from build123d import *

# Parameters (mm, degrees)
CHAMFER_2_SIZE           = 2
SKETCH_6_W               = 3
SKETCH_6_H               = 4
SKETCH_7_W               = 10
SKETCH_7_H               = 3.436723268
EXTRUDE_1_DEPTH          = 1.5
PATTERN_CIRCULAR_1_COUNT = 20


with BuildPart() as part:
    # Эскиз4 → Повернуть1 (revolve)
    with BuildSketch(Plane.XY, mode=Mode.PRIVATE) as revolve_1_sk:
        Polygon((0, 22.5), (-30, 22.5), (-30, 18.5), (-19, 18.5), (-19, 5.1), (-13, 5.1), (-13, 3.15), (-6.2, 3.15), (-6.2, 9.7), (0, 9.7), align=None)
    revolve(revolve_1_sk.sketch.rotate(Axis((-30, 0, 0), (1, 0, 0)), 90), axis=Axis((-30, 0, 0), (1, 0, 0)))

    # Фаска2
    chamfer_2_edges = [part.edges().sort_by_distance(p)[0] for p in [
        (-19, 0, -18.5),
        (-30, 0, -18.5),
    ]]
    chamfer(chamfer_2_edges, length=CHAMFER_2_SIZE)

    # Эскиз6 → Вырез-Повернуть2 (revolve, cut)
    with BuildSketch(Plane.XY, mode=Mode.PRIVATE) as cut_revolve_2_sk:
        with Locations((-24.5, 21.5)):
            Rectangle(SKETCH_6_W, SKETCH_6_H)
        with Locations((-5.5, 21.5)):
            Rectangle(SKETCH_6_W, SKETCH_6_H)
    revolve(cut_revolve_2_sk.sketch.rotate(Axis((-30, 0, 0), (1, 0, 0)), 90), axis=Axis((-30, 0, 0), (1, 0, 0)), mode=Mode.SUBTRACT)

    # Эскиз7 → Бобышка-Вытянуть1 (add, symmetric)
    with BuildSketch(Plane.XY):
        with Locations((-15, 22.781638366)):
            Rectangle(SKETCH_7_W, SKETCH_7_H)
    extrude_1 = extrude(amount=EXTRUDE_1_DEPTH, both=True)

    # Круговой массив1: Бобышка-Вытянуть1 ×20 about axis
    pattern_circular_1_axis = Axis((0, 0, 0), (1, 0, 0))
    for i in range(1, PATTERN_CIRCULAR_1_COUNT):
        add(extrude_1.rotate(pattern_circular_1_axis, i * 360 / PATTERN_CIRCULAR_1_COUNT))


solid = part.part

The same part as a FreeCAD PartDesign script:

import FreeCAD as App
import Part
import Sketcher


def edges_at(feature, points):
    """Names of the edges that pass closest to the given points."""
    edges = feature.Shape.Edges
    near = lambda p: min(range(len(edges)), key=lambda i: edges[i].distToShape(Part.Vertex(*p))[0])
    return sorted({f"Edge{near(p) + 1}" for p in points})


def add_polygon(sketch, points):
    """Adds a closed chain of lines whose ends are joined by coincident constraints."""
    first, n = sketch.GeometryCount, len(points)
    for a, b in zip(points, points[1:] + points[:1]):
        sketch.addGeometry(Part.LineSegment(App.Vector(*a, 0), App.Vector(*b, 0)), False)
    for i in range(n):
        sketch.addConstraint(Sketcher.Constraint("Coincident", first + i, 2, first + (i + 1) % n, 1))

doc = App.newDocument("Part")
body = doc.addObject("PartDesign::Body", "Body")

sketch1 = doc.addObject("Sketcher::SketchObject", "Sketch")
body.addObject(sketch1)
sketch1.AttachmentSupport = (doc.XY_Plane, [""])
sketch1.MapMode = "FlatFace"
add_polygon(sketch1, [(0, 22.5), (-30, 22.5), (-30, 18.5), (-19, 18.5), (-19, 5.1), (-13, 5.1), (-13, 3.1), (-6.2, 3.1), (-6.2, 9.7), (0, 9.7)])
sketch1.addConstraint([
    Sketcher.Constraint("Horizontal", 0),
    Sketcher.Constraint("Vertical", 1),
    Sketcher.Constraint("Horizontal", 2),
    Sketcher.Constraint("Vertical", 3),
    Sketcher.Constraint("Horizontal", 4),
    Sketcher.Constraint("Vertical", 5),
    Sketcher.Constraint("Horizontal", 6),
    Sketcher.Constraint("Vertical", 7),
    Sketcher.Constraint("Horizontal", 8),
    Sketcher.Constraint("Vertical", 9),
    Sketcher.Constraint("PointOnObject", 8, 2, -2),
    Sketcher.Constraint("DistanceX", 0, 2, 0, 1, 30.0),
    Sketcher.Constraint("DistanceX", 2, 1, 2, 2, 11.0),
    Sketcher.Constraint("DistanceX", 4, 1, 4, 2, 6.0),
    Sketcher.Constraint("DistanceY", 1, 2, 1, 1, 4.0),
    Sketcher.Constraint("DistanceX", 6, 1, 6, 2, 6.8),
    Sketcher.Constraint("DistanceY", 3, 2, 3, 1, 13.4),
    Sketcher.Constraint("DistanceY", 9, 1, 9, 2, 12.8),
    Sketcher.Constraint("DistanceY", 5, 2, 5, 1, 1.95),
    Sketcher.Constraint("DistanceY", -1, 1, 0, 2, 22.5),
])
revolution = doc.addObject("PartDesign::Revolution", "Revolution")
body.addObject(revolution)
revolution.Profile = sketch1
revolution.ReferenceAxis = (sketch1, ["H_Axis"])
revolution.Angle = 360
doc.recompute()

chamfer = doc.addObject("PartDesign::Chamfer", "Chamfer")
body.addObject(chamfer)
chamfer.Base = (revolution, edges_at(revolution, [(-19, 0, -18.5), (-30, 0, -18.5)]))
chamfer.Size = 2

sketch2 = doc.addObject("Sketcher::SketchObject", "Sketch001")
body.addObject(sketch2)
sketch2.AttachmentSupport = (doc.XY_Plane, [""])
sketch2.MapMode = "FlatFace"
add_polygon(sketch2, [(-26, 23.5), (-26, 19.5), (-23, 19.5), (-23, 23.5)])
add_polygon(sketch2, [(-7, 23.5), (-7, 19.5), (-4, 19.5), (-4, 23.5)])
sketch2.addConstraint([
    Sketcher.Constraint("Vertical", 0),
    Sketcher.Constraint("Horizontal", 1),
    Sketcher.Constraint("Vertical", 2),
    Sketcher.Constraint("Horizontal", 3),
    Sketcher.Constraint("Vertical", 4),
    Sketcher.Constraint("Horizontal", 5),
    Sketcher.Constraint("Vertical", 6),
    Sketcher.Constraint("Horizontal", 7),
    Sketcher.Constraint("Horizontal", 1, 2, 4, 2),
    Sketcher.Constraint("Horizontal", 3, 2, 6, 2),
    Sketcher.Constraint("Equal", 3, 5),
    Sketcher.Constraint("DistanceX", 1, 1, 1, 2, 3.0),
    Sketcher.Constraint("DistanceY", 0, 2, 0, 1, 4.0),
    Sketcher.Constraint("DistanceX", 0, 2, -1, 1, 26.0),
    Sketcher.Constraint("DistanceX", 4, 2, -1, 1, 7.0),
    Sketcher.Constraint("DistanceY", -1, 1, 0, 2, 19.5),
])
groove = doc.addObject("PartDesign::Groove", "Groove")
body.addObject(groove)
groove.Profile = sketch2
groove.ReferenceAxis = (sketch2, ["H_Axis"])
groove.Angle = 360

sketch3 = doc.addObject("Sketcher::SketchObject", "Sketch002")
body.addObject(sketch3)
sketch3.AttachmentSupport = (doc.XY_Plane, [""])
sketch3.MapMode = "FlatFace"
add_polygon(sketch3, [(-20, 24.5), (-20, 21.1), (-10, 21.1), (-10, 24.5)])
sketch3.addConstraint([
    Sketcher.Constraint("Vertical", 0),
    Sketcher.Constraint("Horizontal", 1),
    Sketcher.Constraint("Vertical", 2),
    Sketcher.Constraint("Horizontal", 3),
    Sketcher.Constraint("DistanceX", 1, 1, 1, 2, 10.0),
    Sketcher.Constraint("DistanceX", 0, 2, -1, 1, 20.0),
    Sketcher.Constraint("DistanceY", -1, 1, 2, 2, 24.5),
    Sketcher.Constraint("DistanceY", 0, 2, 0, 1, 3.436723),
])
pad1 = doc.addObject("PartDesign::Pad", "Pad")
body.addObject(pad1)
pad1.Profile = sketch3
pad1.Length = 3
pad1.Midplane = True
doc.recompute()

polarpattern = doc.addObject("PartDesign::PolarPattern", "PolarPattern")
body.addObject(polarpattern)
polarpattern.Originals = [pad1]
polarpattern.Axis = (doc.X_Axis, [""])
polarpattern.Angle = 360
polarpattern.Occurrences = 20
body.Tip = polarpattern

doc.recompute()
